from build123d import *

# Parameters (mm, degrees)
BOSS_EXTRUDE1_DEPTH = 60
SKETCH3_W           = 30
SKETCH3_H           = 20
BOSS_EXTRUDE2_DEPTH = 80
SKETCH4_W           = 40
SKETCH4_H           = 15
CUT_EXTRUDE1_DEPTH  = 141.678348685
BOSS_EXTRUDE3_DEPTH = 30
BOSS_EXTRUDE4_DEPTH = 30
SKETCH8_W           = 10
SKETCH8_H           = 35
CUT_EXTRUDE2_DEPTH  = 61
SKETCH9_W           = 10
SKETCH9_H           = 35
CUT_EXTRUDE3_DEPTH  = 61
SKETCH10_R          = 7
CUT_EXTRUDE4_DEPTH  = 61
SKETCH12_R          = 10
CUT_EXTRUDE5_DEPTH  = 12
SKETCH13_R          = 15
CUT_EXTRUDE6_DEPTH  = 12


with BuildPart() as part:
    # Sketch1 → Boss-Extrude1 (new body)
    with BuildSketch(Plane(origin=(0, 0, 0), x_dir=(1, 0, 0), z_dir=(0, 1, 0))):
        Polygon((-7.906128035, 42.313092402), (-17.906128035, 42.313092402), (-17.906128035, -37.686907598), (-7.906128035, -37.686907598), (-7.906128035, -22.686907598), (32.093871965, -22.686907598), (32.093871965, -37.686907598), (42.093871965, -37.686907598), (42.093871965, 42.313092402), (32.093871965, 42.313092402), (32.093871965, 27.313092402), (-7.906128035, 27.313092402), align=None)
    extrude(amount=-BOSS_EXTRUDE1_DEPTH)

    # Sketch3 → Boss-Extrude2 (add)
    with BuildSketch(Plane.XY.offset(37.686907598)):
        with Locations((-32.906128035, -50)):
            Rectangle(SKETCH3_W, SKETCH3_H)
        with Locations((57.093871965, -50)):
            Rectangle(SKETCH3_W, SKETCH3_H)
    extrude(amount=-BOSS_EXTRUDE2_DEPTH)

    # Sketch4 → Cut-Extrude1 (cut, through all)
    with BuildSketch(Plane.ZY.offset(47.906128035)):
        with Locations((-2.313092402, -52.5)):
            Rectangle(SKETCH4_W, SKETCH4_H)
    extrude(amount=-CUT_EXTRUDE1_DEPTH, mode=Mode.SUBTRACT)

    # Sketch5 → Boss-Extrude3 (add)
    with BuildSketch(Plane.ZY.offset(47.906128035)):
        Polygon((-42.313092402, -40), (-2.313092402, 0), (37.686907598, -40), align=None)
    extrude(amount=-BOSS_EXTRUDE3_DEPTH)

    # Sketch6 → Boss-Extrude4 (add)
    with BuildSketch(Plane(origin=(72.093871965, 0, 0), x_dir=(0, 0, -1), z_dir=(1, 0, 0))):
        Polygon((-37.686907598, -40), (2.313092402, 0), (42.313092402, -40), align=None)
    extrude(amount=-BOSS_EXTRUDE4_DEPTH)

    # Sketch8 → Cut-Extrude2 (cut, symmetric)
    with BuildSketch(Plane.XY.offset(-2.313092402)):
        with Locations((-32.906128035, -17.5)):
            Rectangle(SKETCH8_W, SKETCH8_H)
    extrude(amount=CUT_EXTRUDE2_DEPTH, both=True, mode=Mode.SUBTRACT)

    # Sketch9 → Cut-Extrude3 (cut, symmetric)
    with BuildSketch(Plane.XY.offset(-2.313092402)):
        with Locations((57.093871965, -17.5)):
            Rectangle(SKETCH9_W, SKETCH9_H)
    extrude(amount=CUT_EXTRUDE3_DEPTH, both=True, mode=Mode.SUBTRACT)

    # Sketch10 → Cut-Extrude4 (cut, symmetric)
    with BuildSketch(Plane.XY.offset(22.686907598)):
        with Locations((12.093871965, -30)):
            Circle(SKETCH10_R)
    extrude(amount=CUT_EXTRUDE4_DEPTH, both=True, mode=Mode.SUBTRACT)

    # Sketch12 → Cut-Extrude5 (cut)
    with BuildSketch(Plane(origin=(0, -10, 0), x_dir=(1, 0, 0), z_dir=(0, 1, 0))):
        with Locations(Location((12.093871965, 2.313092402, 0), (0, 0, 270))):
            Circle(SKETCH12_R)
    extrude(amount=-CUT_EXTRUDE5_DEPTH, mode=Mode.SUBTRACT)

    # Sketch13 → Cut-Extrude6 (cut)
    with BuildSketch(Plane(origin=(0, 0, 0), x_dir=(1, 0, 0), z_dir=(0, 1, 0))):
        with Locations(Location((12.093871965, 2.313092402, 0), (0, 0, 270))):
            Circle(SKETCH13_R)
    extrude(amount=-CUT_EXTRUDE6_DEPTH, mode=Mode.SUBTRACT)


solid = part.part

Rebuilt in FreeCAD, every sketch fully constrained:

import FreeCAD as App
import Part
import Sketcher
from FreeCAD import Vector


def add_polygon(sketch, points):
    """Adds a closed chain of lines whose ends are joined by coincident constraints."""
    first, n = sketch.GeometryCount, len(points)
    for a, b in zip(points, points[1:] + points[:1]):
        sketch.addGeometry(Part.LineSegment(App.Vector(*a, 0), App.Vector(*b, 0)), False)
    for i in range(n):
        sketch.addConstraint(Sketcher.Constraint("Coincident", first + i, 2, first + (i + 1) % n, 1))

doc = App.newDocument("Part")
body = doc.addObject("PartDesign::Body", "Body")

# Sketch on XZ plane
sketch1 = doc.addObject("Sketcher::SketchObject", "Sketch")
body.addObject(sketch1)
sketch1.AttachmentSupport = (doc.XZ_Plane, [""])
sketch1.MapMode = "FlatFace"
add_polygon(sketch1, [(-8, -42), (-18, -42), (-18, 38), (-8, 38), (-8, 23), (32, 23), (32, 38), (42, 38), (42, -42), (32, -42), (32, -27), (-8, -27)])  # lines 0-11
sketch1.addConstraint([
    Sketcher.Constraint("Horizontal", 0),
    Sketcher.Constraint("Vertical", 1),
    Sketcher.Constraint("Horizontal", 2),
    Sketcher.Constraint("Vertical", 3),
    Sketcher.Constraint("Horizontal", 4),
    Sketcher.Constraint("Vertical", 5),
    Sketcher.Constraint("Horizontal", 6),
    Sketcher.Constraint("Vertical", 7),
    Sketcher.Constraint("Horizontal", 8),
    Sketcher.Constraint("Vertical", 9),
    Sketcher.Constraint("Horizontal", 10),
    Sketcher.Constraint("Vertical", 11),
    Sketcher.Constraint("Horizontal", 2, 2, 5, 2),
    Sketcher.Constraint("Horizontal", 0, 2, 7, 2),
    Sketcher.Constraint("Vertical", 5, 2, 8, 2),
    Sketcher.Constraint("Vertical", 3, 2, 10, 2),
    Sketcher.Constraint("Equal", 2, 6),
    Sketcher.Constraint("Equal", 5, 9),
    Sketcher.Constraint("DistanceX", 0, 2, 0, 1, 10.0),
    Sketcher.Constraint("DistanceX", 4, 1, 4, 2, 40.0),
    Sketcher.Constraint("DistanceY", 1, 1, 1, 2, 80.0),
    Sketcher.Constraint("DistanceY", 3, 2, 3, 1, 15.0),
    Sketcher.Constraint("DistanceX", 0, 2, -1, 1, 17.906128),
    Sketcher.Constraint("DistanceY", 0, 2, -1, 1, 42.313092),
])
pad1 = doc.addObject("PartDesign::Pad", "Pad")
body.addObject(pad1)
pad1.Profile = sketch1
pad1.Length = 60

# Sketch on XY plane
sketch2 = doc.addObject("Sketcher::SketchObject", "Sketch001")
body.addObject(sketch2)
sketch2.AttachmentSupport = (doc.XY_Plane, [""])
sketch2.MapMode = "FlatFace"
sketch2.AttachmentOffset = App.Placement(Vector(0, 0, 37.686908), App.Rotation())
add_polygon(sketch2, [(-48, -40), (-48, -60), (-18, -60), (-18, -40)])  # lines 0-3
add_polygon(sketch2, [(42, -40), (42, -60), (72, -60), (72, -40)])  # lines 4-7
sketch2.addConstraint([
    Sketcher.Constraint("Vertical", 0),
    Sketcher.Constraint("Horizontal", 1),
    Sketcher.Constraint("Vertical", 2),
    Sketcher.Constraint("Horizontal", 3),
    Sketcher.Constraint("Vertical", 4),
    Sketcher.Constraint("Horizontal", 5),
    Sketcher.Constraint("Vertical", 6),
    Sketcher.Constraint("Horizontal", 7),
    Sketcher.Constraint("Horizontal", 1, 2, 4, 2),
    Sketcher.Constraint("Horizontal", 3, 2, 6, 2),
    Sketcher.Constraint("Equal", 3, 5),
    Sketcher.Constraint("DistanceX", 1, 1, 1, 2, 30.0),
    Sketcher.Constraint("DistanceY", 0, 2, 0, 1, 20.0),
    Sketcher.Constraint("DistanceY", 0, 2, -1, 1, 60.0),
    Sketcher.Constraint("DistanceX", 1, 2, 4, 2, 60.0),
    Sketcher.Constraint("DistanceX", 0, 2, -1, 1, 47.906128),
])
pad2 = doc.addObject("PartDesign::Pad", "Pad001")
body.addObject(pad2)
pad2.Profile = sketch2
pad2.Length = 80
pad2.Reversed = True

# Sketch on YZ plane
sketch3 = doc.addObject("Sketcher::SketchObject", "Sketch002")
body.addObject(sketch3)
sketch3.AttachmentSupport = (doc.YZ_Plane, [""])
sketch3.MapMode = "FlatFace"
sketch3.AttachmentOffset = App.Placement(Vector(0, 0, -47.906128), App.Rotation())
add_polygon(sketch3, [(-45, -22), (-60, -22), (-60, 18), (-45, 18)])  # lines 0-3
sketch3.addConstraint([
    Sketcher.Constraint("Horizontal", 0),
    Sketcher.Constraint("Vertical", 1),
    Sketcher.Constraint("Horizontal", 2),
    Sketcher.Constraint("Vertical", 3),
    Sketcher.Constraint("DistanceX", 0, 2, 0, 1, 15.0),
    Sketcher.Constraint("DistanceY", 1, 1, 1, 2, 40.0),
    Sketcher.Constraint("DistanceX", 0, 2, -1, 1, 60.0),
    Sketcher.Constraint("DistanceY", 0, 2, -1, 1, 22.313092),
])
pocket1 = doc.addObject("PartDesign::Pocket", "Pocket")
body.addObject(pocket1)
pocket1.Profile = sketch3
pocket1.Type = "ThroughAll"
pocket1.Reversed = True

# Sketch on YZ plane
sketch4 = doc.addObject("Sketcher::SketchObject", "Sketch003")
body.addObject(sketch4)
sketch4.AttachmentSupport = (doc.YZ_Plane, [""])
sketch4.MapMode = "FlatFace"
sketch4.AttachmentOffset = App.Placement(Vector(0, 0, -47.906128), App.Rotation())
add_polygon(sketch4, [(0, -2), (-40, -42), (-40, 38)])  # lines 0-2
sketch4.addConstraint([
    Sketcher.Constraint("Vertical", 1),
    Sketcher.Constraint("PointOnObject", 2, 2, -2),
    Sketcher.Constraint("Perpendicular", 0, 2),
    Sketcher.Constraint("Equal", 0, 2),
    Sketcher.Constraint("DistanceY", 1, 1, 1, 2, 80.0),
    Sketcher.Constraint("DistanceY", 0, 2, -1, 1, 42.313092),
])
pad3 = doc.addObject("PartDesign::Pad", "Pad002")
body.addObject(pad3)
pad3.Profile = sketch4
pad3.Length = 30

# Sketch on YZ plane
sketch5 = doc.addObject("Sketcher::SketchObject", "Sketch004")
body.addObject(sketch5)
sketch5.AttachmentSupport = (doc.YZ_Plane, [""])
sketch5.MapMode = "FlatFace"
sketch5.AttachmentOffset = App.Placement(Vector(0, 0, 72.093872), App.Rotation())
add_polygon(sketch5, [(0, -2), (-40, 38), (-40, -42)])  # lines 0-2
sketch5.addConstraint([
    Sketcher.Constraint("Vertical", 1),
    Sketcher.Constraint("PointOnObject", 2, 2, -2),
    Sketcher.Constraint("Perpendicular", 0, 2),
    Sketcher.Constraint("Equal", 0, 2),
    Sketcher.Constraint("DistanceY", 1, 2, 1, 1, 80.0),
    Sketcher.Constraint("DistanceY", -1, 1, 0, 2, 37.686908),
])
pad4 = doc.addObject("PartDesign::Pad", "Pad003")
body.addObject(pad4)
pad4.Profile = sketch5
pad4.Length = 30
pad4.Reversed = True

# Sketch on XY plane
sketch6 = doc.addObject("Sketcher::SketchObject", "Sketch005")
body.addObject(sketch6)
sketch6.AttachmentSupport = (doc.XY_Plane, [""])
sketch6.MapMode = "FlatFace"
sketch6.AttachmentOffset = App.Placement(Vector(0, 0, -2.313092), App.Rotation())
add_polygon(sketch6, [(-38, 0), (-38, -35), (-28, -35), (-28, 0)])  # lines 0-3
sketch6.addConstraint([
    Sketcher.Constraint("Vertical", 0),
    Sketcher.Constraint("Horizontal", 1),
    Sketcher.Constraint("Vertical", 2),
    Sketcher.Constraint("Horizontal", 3),
    Sketcher.Constraint("PointOnObject", 2, 2, -1),
    Sketcher.Constraint("DistanceX", 1, 1, 1, 2, 10.0),
    Sketcher.Constraint("DistanceY", 0, 2, 0, 1, 35.0),
    Sketcher.Constraint("DistanceX", 0, 2, -1, 1, 37.906128),
])
pocket2 = doc.addObject("PartDesign::Pocket", "Pocket001")
body.addObject(pocket2)
pocket2.Profile = sketch6
pocket2.Length = 122
pocket2.Midplane = True

# Sketch on XY plane
sketch7 = doc.addObject("Sketcher::SketchObject", "Sketch006")
body.addObject(sketch7)
sketch7.AttachmentSupport = (doc.XY_Plane, [""])
sketch7.MapMode = "FlatFace"
sketch7.AttachmentOffset = App.Placement(Vector(0, 0, -2.313092), App.Rotation())
add_polygon(sketch7, [(52, 0), (52, -35), (62, -35), (62, 0)])  # lines 0-3
sketch7.addConstraint([
    Sketcher.Constraint("Vertical", 0),
    Sketcher.Constraint("Horizontal", 1),
    Sketcher.Constraint("Vertical", 2),
    Sketcher.Constraint("Horizontal", 3),
    Sketcher.Constraint("PointOnObject", 2, 2, -1),
    Sketcher.Constraint("DistanceX", 1, 1, 1, 2, 10.0),
    Sketcher.Constraint("DistanceY", 0, 2, 0, 1, 35.0),
    Sketcher.Constraint("DistanceX", -1, 1, 0, 2, 52.093872),
])
pocket3 = doc.addObject("PartDesign::Pocket", "Pocket002")
body.addObject(pocket3)
pocket3.Profile = sketch7
pocket3.Length = 122
pocket3.Midplane = True

# Sketch on XY plane
sketch8 = doc.addObject("Sketcher::SketchObject", "Sketch007")
body.addObject(sketch8)
sketch8.AttachmentSupport = (doc.XY_Plane, [""])
sketch8.MapMode = "FlatFace"
sketch8.AttachmentOffset = App.Placement(Vector(0, 0, 22.686908), App.Rotation())
sketch8.addGeometry(Part.Circle(Vector(12, -30, 0), Vector(0, 0, 1), 7), False)
sketch8.addConstraint([
    Sketcher.Constraint("Diameter", 0, 14.0),
    Sketcher.Constraint("DistanceY", 0, 3, -1, 1, 30.0),
    Sketcher.Constraint("DistanceX", -1, 1, 0, 3, 12.093872),
])
pocket4 = doc.addObject("PartDesign::Pocket", "Pocket003")
body.addObject(pocket4)
pocket4.Profile = sketch8
pocket4.Length = 122
pocket4.Midplane = True

# Sketch on XZ plane
sketch9 = doc.addObject("Sketcher::SketchObject", "Sketch008")
body.addObject(sketch9)
sketch9.AttachmentSupport = (doc.XZ_Plane, [""])
sketch9.MapMode = "FlatFace"
sketch9.AttachmentOffset = App.Placement(Vector(0, 0, 10), App.Rotation())
sketch9.addGeometry(Part.Circle(Vector(12, -2, 0), Vector(0, 0, 1), 10), False)
sketch9.addConstraint([
    Sketcher.Constraint("Diameter", 0, 20.0),
    Sketcher.Constraint("DistanceX", -1, 1, 0, 3, 12.093872),
    Sketcher.Constraint("DistanceY", 0, 3, -1, 1, 2.313092),
])
pocket5 = doc.addObject("PartDesign::Pocket", "Pocket004")
body.addObject(pocket5)
pocket5.Profile = sketch9
pocket5.Length = 12
pocket5.Reversed = True

# Sketch on XZ plane
sketch10 = doc.addObject("Sketcher::SketchObject", "Sketch009")
body.addObject(sketch10)
sketch10.AttachmentSupport = (doc.XZ_Plane, [""])
sketch10.MapMode = "FlatFace"
sketch10.addGeometry(Part.Circle(Vector(12, -2, 0), Vector(0, 0, 1), 15), False)
sketch10.addConstraint([
    Sketcher.Constraint("Diameter", 0, 30.0),
    Sketcher.Constraint("DistanceX", -1, 1, 0, 3, 12.093872),
    Sketcher.Constraint("DistanceY", 0, 3, -1, 1, 2.313092),
])
pocket6 = doc.addObject("PartDesign::Pocket", "Pocket005")
body.addObject(pocket6)
pocket6.Profile = sketch10
pocket6.Length = 12
pocket6.Reversed = True

doc.recompute()
